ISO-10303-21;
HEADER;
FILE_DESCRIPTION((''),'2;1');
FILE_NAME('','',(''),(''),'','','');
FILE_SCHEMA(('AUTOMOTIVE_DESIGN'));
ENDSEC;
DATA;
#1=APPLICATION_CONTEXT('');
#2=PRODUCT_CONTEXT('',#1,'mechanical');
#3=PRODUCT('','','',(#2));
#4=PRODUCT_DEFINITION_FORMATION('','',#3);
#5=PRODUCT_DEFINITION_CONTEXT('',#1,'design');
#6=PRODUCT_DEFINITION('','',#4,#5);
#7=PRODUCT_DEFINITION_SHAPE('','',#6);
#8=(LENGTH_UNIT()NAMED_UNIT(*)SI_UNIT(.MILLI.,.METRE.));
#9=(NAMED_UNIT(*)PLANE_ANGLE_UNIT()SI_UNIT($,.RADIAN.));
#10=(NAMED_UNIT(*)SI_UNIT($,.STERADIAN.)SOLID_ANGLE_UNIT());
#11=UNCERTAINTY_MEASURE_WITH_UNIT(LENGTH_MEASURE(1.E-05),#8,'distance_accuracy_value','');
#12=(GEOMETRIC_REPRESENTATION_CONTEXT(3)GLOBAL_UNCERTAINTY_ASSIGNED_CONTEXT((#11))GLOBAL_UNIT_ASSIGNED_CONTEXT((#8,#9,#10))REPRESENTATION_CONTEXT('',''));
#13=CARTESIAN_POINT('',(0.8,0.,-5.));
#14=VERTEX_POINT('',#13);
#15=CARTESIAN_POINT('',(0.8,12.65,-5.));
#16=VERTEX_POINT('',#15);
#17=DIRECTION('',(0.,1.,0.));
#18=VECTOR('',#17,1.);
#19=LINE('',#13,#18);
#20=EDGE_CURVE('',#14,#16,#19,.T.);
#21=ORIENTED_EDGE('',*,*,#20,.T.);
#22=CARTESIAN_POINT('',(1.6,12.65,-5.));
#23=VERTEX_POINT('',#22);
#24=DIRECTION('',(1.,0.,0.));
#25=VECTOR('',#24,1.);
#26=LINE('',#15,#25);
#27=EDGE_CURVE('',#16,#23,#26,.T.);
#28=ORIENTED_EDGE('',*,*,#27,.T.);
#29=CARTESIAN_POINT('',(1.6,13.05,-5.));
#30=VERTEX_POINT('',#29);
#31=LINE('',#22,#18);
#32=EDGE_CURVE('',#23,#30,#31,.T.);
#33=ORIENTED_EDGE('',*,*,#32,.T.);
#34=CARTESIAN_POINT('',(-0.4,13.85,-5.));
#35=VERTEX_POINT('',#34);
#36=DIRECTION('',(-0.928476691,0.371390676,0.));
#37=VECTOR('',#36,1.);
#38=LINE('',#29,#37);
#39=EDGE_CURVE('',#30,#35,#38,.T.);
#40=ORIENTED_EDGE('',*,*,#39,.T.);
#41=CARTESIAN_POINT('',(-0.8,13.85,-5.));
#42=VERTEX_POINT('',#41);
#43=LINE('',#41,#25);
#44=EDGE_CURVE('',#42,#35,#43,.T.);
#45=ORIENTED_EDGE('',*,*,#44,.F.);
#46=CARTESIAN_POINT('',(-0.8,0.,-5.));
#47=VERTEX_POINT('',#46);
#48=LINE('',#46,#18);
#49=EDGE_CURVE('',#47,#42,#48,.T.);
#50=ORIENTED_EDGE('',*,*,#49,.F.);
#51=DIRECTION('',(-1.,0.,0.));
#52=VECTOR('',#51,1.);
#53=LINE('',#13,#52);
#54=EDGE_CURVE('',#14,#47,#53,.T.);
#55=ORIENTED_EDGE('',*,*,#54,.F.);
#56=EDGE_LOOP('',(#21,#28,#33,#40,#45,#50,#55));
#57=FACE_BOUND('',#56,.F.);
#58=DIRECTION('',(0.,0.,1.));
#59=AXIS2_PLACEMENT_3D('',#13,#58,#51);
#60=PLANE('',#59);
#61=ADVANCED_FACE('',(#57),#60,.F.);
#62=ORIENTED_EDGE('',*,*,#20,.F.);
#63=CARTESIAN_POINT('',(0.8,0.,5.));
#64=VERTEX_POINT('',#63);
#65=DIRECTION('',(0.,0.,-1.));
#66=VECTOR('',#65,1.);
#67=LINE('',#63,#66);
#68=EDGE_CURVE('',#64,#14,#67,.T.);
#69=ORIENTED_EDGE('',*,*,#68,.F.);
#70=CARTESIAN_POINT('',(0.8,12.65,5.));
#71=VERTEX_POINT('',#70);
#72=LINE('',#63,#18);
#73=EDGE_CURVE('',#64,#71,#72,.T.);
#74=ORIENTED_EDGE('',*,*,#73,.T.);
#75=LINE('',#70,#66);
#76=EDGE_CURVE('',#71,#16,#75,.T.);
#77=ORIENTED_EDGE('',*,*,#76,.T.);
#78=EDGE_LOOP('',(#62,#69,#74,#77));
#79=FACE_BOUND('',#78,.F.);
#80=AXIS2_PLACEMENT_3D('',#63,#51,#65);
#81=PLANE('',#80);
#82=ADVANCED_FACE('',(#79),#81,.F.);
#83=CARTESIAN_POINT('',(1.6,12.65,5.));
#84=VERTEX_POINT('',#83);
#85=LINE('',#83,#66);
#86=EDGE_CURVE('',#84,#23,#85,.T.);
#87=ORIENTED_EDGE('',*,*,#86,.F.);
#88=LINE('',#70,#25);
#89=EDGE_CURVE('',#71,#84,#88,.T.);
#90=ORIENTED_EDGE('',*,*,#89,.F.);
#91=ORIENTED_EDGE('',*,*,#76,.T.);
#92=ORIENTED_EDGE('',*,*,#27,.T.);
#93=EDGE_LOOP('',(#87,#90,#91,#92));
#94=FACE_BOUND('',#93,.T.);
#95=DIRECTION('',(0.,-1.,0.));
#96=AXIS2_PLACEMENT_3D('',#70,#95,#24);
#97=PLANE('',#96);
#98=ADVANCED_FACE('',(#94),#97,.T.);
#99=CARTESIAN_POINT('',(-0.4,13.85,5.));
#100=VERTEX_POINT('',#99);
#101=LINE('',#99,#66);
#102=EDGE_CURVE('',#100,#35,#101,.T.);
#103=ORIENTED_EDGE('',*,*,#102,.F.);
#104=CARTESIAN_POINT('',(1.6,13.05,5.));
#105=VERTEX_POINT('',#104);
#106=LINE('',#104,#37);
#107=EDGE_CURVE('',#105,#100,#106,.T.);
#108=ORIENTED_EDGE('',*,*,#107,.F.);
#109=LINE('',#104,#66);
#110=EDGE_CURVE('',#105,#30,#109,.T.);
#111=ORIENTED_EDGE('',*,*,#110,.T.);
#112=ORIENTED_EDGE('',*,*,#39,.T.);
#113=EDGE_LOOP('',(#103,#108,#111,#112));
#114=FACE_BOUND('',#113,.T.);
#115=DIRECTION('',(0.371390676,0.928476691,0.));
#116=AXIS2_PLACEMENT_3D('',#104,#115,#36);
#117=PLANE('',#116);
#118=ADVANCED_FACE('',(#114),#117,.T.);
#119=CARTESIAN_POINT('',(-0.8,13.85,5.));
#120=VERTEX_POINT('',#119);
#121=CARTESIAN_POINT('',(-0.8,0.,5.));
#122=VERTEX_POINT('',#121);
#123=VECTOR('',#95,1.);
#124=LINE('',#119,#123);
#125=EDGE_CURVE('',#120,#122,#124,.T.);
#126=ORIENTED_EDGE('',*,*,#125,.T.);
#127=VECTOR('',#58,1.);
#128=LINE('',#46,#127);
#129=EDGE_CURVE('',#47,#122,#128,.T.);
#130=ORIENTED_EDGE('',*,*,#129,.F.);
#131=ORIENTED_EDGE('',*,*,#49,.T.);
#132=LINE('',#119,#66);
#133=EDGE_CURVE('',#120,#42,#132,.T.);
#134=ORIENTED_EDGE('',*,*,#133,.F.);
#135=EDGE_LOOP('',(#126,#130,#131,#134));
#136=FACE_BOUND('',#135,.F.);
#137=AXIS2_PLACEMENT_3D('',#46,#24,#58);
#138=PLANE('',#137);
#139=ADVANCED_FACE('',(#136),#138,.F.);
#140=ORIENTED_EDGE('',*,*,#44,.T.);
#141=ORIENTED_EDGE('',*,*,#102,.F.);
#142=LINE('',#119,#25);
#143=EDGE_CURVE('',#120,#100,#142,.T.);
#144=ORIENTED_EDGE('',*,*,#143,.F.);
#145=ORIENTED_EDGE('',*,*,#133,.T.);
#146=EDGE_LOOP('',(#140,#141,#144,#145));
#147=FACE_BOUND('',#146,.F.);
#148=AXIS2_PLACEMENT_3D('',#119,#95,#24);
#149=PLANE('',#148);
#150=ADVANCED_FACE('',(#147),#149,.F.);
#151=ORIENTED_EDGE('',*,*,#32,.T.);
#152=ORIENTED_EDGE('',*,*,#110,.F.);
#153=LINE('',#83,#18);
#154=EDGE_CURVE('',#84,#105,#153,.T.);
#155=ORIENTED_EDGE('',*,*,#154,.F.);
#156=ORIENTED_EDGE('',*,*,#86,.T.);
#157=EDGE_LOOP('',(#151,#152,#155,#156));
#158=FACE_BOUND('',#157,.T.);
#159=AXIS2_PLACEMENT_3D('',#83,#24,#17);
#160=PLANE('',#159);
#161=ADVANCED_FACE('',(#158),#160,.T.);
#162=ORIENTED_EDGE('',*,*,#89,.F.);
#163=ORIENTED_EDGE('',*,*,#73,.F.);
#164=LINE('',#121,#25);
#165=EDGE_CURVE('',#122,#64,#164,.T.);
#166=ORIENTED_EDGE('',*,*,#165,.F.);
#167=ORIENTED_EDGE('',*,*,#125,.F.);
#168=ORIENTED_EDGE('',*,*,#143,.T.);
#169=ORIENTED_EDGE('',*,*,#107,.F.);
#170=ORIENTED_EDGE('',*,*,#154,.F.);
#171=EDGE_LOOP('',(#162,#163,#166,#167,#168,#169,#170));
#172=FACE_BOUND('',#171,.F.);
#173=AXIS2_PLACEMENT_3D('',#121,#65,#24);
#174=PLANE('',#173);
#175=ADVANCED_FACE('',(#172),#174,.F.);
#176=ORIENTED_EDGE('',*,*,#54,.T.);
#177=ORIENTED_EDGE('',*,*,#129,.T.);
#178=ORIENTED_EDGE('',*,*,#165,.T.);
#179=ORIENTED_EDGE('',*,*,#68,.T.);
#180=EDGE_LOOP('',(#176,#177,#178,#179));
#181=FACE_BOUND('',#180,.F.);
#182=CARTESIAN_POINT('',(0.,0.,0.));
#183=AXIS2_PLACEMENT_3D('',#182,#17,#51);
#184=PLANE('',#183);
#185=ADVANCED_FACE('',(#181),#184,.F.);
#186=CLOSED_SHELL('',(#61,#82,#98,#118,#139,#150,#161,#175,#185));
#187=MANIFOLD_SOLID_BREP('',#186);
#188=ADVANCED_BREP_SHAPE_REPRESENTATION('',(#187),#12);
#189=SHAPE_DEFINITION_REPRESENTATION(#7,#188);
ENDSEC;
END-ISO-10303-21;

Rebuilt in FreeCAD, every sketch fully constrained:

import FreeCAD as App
import Part
import Sketcher


def add_polygon(sketch, points):
    """Adds a closed chain of lines whose ends are joined by coincident constraints."""
    first, n = sketch.GeometryCount, len(points)
    for a, b in zip(points, points[1:] + points[:1]):
        sketch.addGeometry(Part.LineSegment(App.Vector(*a, 0), App.Vector(*b, 0)), False)
    for i in range(n):
        sketch.addConstraint(Sketcher.Constraint("Coincident", first + i, 2, first + (i + 1) % n, 1))

doc = App.newDocument("Part")
body = doc.addObject("PartDesign::Body", "Body")

# Sketch on XZ plane
sketch1 = doc.addObject("Sketcher::SketchObject", "Sketch")
body.addObject(sketch1)
sketch1.AttachmentSupport = (doc.XZ_Plane, [""])
sketch1.MapMode = "FlatFace"
add_polygon(sketch1, [(0.8, 5), (0.8, -5), (-0.8, -5), (-0.8, 5)])  # lines 0-3
sketch1.addConstraint(Sketcher.Constraint("Vertical", 0))
sketch1.addConstraint(Sketcher.Constraint("Horizontal", 1))
sketch1.addConstraint(Sketcher.Constraint("Vertical", 2))
sketch1.addConstraint(Sketcher.Constraint("Horizontal", 3))
sketch1.addConstraint(Sketcher.Constraint("Symmetric", 0, 2, 2, 2, -1, 1))
sketch1.addConstraint(Sketcher.Constraint("DistanceY", 0, 2, 0, 1, 10.0))
sketch1.addConstraint(Sketcher.Constraint("DistanceX", 1, 2, 1, 1, 1.6))
pad1 = doc.addObject("PartDesign::Pad", "Pad")
body.addObject(pad1)
pad1.Profile = sketch1
pad1.Length = 12.65
pad1.Reversed = True

# Sketch on XY plane
sketch2 = doc.addObject("Sketcher::SketchObject", "Sketch001")
body.addObject(sketch2)
sketch2.AttachmentSupport = (doc.XY_Plane, [""])
sketch2.MapMode = "FlatFace"
sketch2.AttachmentOffset = App.Placement(App.Vector(0, 0, 5), App.Rotation())
add_polygon(sketch2, [(-0.8, 12.65), (1.6, 12.65), (1.6, 13.05), (-0.4, 13.85), (-0.8, 13.85)])  # lines 0-4
sketch2.addConstraint(Sketcher.Constraint("Horizontal", 0))
sketch2.addConstraint(Sketcher.Constraint("Vertical", 1))
sketch2.addConstraint(Sketcher.Constraint("Horizontal", 3))
sketch2.addConstraint(Sketcher.Constraint("Vertical", 4))
sketch2.addConstraint(Sketcher.Constraint("Equal", 3, 1))
sketch2.addConstraint(Sketcher.Constraint("DistanceX", 3, 2, 3, 1, 0.4))
sketch2.addConstraint(Sketcher.Constraint("DistanceY", 4, 2, 4, 1, 1.2))
sketch2.addConstraint(Sketcher.Constraint("DistanceX", 2, 2, -1, 1, 0.4))
sketch2.addConstraint(Sketcher.Constraint("DistanceX", 0, 1, 0, 2, 2.4))
sketch2.addConstraint(Sketcher.Constraint("DistanceY", -1, 1, 0, 2, 12.65))
pad2 = doc.addObject("PartDesign::Pad", "Pad001")
body.addObject(pad2)
pad2.Profile = sketch2
pad2.Length = 10
pad2.Reversed = True

doc.recompute()
